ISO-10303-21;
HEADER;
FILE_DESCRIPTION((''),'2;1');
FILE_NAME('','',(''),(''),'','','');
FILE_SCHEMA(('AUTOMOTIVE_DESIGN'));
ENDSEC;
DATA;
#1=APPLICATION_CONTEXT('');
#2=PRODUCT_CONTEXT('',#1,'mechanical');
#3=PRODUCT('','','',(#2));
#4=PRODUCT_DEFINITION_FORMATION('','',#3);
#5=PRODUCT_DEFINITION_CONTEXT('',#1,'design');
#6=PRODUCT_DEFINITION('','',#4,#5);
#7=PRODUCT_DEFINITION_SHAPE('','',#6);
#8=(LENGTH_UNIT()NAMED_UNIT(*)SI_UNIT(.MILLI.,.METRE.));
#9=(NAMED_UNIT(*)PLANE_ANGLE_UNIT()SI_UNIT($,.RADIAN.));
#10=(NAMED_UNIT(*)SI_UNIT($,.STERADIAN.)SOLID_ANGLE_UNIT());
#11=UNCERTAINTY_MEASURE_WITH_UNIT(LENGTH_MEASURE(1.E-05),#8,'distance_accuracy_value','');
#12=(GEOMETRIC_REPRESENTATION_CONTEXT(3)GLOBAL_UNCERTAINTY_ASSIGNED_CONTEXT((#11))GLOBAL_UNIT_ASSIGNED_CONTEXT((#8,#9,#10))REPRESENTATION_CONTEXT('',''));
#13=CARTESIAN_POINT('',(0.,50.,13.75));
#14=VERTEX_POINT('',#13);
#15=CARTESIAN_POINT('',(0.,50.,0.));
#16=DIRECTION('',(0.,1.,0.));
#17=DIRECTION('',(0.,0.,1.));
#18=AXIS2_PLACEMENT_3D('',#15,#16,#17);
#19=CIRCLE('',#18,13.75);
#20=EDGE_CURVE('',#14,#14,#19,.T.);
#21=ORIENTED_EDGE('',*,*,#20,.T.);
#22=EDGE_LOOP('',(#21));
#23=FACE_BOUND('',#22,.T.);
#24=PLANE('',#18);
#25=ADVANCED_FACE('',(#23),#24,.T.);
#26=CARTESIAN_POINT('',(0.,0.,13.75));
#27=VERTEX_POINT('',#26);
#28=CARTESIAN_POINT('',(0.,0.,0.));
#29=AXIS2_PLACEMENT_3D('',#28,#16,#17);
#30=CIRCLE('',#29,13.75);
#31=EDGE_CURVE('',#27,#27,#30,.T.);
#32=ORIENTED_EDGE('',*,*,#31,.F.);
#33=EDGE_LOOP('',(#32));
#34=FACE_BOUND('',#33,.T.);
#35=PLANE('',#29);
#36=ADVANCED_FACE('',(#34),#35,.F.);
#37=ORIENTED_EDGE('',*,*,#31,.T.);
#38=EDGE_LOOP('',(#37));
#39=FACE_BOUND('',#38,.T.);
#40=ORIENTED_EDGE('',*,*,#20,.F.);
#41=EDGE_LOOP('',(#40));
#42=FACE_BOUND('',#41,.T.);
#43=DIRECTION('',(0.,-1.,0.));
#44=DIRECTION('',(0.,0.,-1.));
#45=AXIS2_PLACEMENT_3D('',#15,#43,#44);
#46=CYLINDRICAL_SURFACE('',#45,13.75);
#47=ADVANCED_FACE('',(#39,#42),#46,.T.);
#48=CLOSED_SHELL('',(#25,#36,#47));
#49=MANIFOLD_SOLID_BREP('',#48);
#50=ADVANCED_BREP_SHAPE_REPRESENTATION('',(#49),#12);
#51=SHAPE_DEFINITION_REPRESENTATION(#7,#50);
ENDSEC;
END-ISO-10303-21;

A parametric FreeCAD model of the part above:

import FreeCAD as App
import Part
import Sketcher
Q = App.Units.Quantity

doc = App.newDocument("Part")
body = doc.addObject("PartDesign::Body", "Body")

sketch1 = doc.addObject("Sketcher::SketchObject", "Sketch")
body.addObject(sketch1)
sketch1.AttachmentSupport = (doc.XZ_Plane, [""])
sketch1.MapMode = "FlatFace"
sketch1.addGeometry(Part.Circle(App.Vector(0, 0, 0), App.Vector(0, 0, 1), 14), False)
sketch1.addConstraint(Sketcher.Constraint("Coincident", 0, 3, -1, 1))
sketch1.addConstraint(Sketcher.Constraint("Diameter", 0, Q("27.5 mm")))
pad1 = doc.addObject("PartDesign::Pad", "Pad")
body.addObject(pad1)
pad1.Profile = sketch1
pad1.Length = 50
pad1.Reversed = True

doc.recompute()
